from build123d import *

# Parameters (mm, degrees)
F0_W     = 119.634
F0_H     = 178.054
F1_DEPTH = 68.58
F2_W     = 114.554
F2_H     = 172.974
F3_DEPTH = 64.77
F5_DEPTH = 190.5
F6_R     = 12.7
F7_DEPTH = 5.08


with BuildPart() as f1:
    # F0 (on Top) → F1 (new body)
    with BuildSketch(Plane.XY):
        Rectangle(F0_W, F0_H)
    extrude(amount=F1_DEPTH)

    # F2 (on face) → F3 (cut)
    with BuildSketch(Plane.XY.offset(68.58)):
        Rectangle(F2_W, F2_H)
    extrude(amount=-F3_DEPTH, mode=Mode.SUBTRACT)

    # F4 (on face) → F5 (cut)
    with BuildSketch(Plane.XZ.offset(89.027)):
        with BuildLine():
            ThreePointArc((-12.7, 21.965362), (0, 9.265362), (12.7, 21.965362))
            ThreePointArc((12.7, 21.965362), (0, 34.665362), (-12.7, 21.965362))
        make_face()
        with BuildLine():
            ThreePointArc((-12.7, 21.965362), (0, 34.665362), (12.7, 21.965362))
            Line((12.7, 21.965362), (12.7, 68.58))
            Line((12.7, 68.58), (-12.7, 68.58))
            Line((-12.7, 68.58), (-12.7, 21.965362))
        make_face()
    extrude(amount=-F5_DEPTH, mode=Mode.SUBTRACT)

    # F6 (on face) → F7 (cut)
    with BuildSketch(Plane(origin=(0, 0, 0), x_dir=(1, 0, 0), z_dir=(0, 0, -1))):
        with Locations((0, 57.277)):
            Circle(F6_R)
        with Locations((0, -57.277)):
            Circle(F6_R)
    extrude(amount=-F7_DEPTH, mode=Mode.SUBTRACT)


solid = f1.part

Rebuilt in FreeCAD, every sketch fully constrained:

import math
import FreeCAD as App
import Part
import Sketcher
Q = App.Units.Quantity

doc = App.newDocument("Part")
body = doc.addObject("PartDesign::Body", "Body")

# Sketch on XY plane
sketch1 = body.newObject("Sketcher::SketchObject", "Sketch")
sketch1.AttachmentSupport = (doc.getObject("XY_Plane"), [""])
sketch1.MapMode = "FlatFace"
sketch1.addGeometry(Part.LineSegment(App.Vector(-59.817, 89.027, 0), App.Vector(-59.817, -89.027, 0)), False)
sketch1.addGeometry(Part.LineSegment(App.Vector(-59.817, -89.027, 0), App.Vector(59.817, -89.027, 0)), False)
sketch1.addGeometry(Part.LineSegment(App.Vector(59.817, -89.027, 0), App.Vector(59.817, 89.027, 0)), False)
sketch1.addGeometry(Part.LineSegment(App.Vector(59.817, 89.027, 0), App.Vector(-59.817, 89.027, 0)), False)
sketch1.addConstraint(Sketcher.Constraint("Coincident", 0, 2, 1, 1))
sketch1.addConstraint(Sketcher.Constraint("Coincident", 1, 2, 2, 1))
sketch1.addConstraint(Sketcher.Constraint("Coincident", 2, 2, 3, 1))
sketch1.addConstraint(Sketcher.Constraint("Coincident", 3, 2, 0, 1))
sketch1.addConstraint(Sketcher.Constraint("Vertical", 0))
sketch1.addConstraint(Sketcher.Constraint("Horizontal", 1))
sketch1.addConstraint(Sketcher.Constraint("Vertical", 2))
sketch1.addConstraint(Sketcher.Constraint("Horizontal", 3))
sketch1.addConstraint(Sketcher.Constraint("Symmetric", 0, 2, 2, 2, -1, 1))
sketch1.addConstraint(Sketcher.Constraint("DistanceX", 1, 1, 1, 2, Q("4.71 in")))
sketch1.addConstraint(Sketcher.Constraint("DistanceY", 0, 2, 0, 1, Q("7.01 in")))
pad1 = body.newObject("PartDesign::Pad", "Pad")
pad1.Profile = sketch1
pad1.Length = Q("2.7 in")

# Sketch on XY plane
sketch2 = body.newObject("Sketcher::SketchObject", "Sketch001")
sketch2.AttachmentSupport = (doc.getObject("XY_Plane"), [""])
sketch2.MapMode = "FlatFace"
sketch2.AttachmentOffset = App.Placement(App.Vector(0, 0, 2.7 * 25.4), App.Rotation())
sketch2.addGeometry(Part.LineSegment(App.Vector(-57.277, 86.487, 0), App.Vector(-57.277, -86.487, 0)), False)
sketch2.addGeometry(Part.LineSegment(App.Vector(-57.277, -86.487, 0), App.Vector(57.277, -86.487, 0)), False)
sketch2.addGeometry(Part.LineSegment(App.Vector(57.277, -86.487, 0), App.Vector(57.277, 86.487, 0)), False)
sketch2.addGeometry(Part.LineSegment(App.Vector(57.277, 86.487, 0), App.Vector(-57.277, 86.487, 0)), False)
sketch2.addConstraint(Sketcher.Constraint("Coincident", 0, 2, 1, 1))
sketch2.addConstraint(Sketcher.Constraint("Coincident", 1, 2, 2, 1))
sketch2.addConstraint(Sketcher.Constraint("Coincident", 2, 2, 3, 1))
sketch2.addConstraint(Sketcher.Constraint("Coincident", 3, 2, 0, 1))
sketch2.addConstraint(Sketcher.Constraint("Vertical", 0))
sketch2.addConstraint(Sketcher.Constraint("Horizontal", 1))
sketch2.addConstraint(Sketcher.Constraint("Vertical", 2))
sketch2.addConstraint(Sketcher.Constraint("Horizontal", 3))
sketch2.addConstraint(Sketcher.Constraint("Symmetric", 0, 2, 2, 2, -1, 1))
sketch2.addConstraint(Sketcher.Constraint("DistanceX", 1, 1, 1, 2, Q("4.51 in")))
sketch2.addConstraint(Sketcher.Constraint("DistanceY", 0, 2, 0, 1, Q("6.81 in")))
pocket1 = body.newObject("PartDesign::Pocket", "Pocket")
pocket1.Profile = sketch2
pocket1.Length = Q("2.55 in")

# Sketch on XZ plane
sketch3 = body.newObject("Sketcher::SketchObject", "Sketch002")
sketch3.AttachmentSupport = (doc.getObject("XZ_Plane"), [""])
sketch3.MapMode = "FlatFace"
sketch3.AttachmentOffset = App.Placement(App.Vector(0, 0, 3.505 * 25.4), App.Rotation())
sketch3.addGeometry(Part.ArcOfCircle(Part.Circle(App.Vector(0, 21.965362, 0), App.Vector(0, 0, 1), 12.7), math.radians(180), math.radians(360)), False)
sketch3.addGeometry(Part.LineSegment(App.Vector(12.7, 21.965362, 0), App.Vector(12.7, 68.58, 0)), False)
sketch3.addGeometry(Part.LineSegment(App.Vector(12.7, 68.58, 0), App.Vector(-12.7, 68.58, 0)), False)
sketch3.addGeometry(Part.LineSegment(App.Vector(-12.7, 68.58, 0), App.Vector(-12.7, 21.965362, 0)), False)
sketch3.addConstraint(Sketcher.Constraint("Tangent", 0, 2, 1, 1))
sketch3.addConstraint(Sketcher.Constraint("Coincident", 1, 2, 2, 1))
sketch3.addConstraint(Sketcher.Constraint("Coincident", 2, 2, 3, 1))
sketch3.addConstraint(Sketcher.Constraint("Tangent", 3, 2, 0, 1))
sketch3.addConstraint(Sketcher.Constraint("Vertical", 1))
sketch3.addConstraint(Sketcher.Constraint("Horizontal", 2))
sketch3.addConstraint(Sketcher.Constraint("Vertical", 3))
sketch3.addConstraint(Sketcher.Constraint("PointOnObject", 0, 3, -2))
sketch3.addConstraint(Sketcher.Constraint("Radius", 0, Q("0.5 in")))
sketch3.addConstraint(Sketcher.Constraint("DistanceY", -1, 1, 1, 2, Q("2.7 in")))
sketch3.addConstraint(Sketcher.Constraint("DistanceY", 1, 1, 1, 2, 46.614638))
pocket2 = body.newObject("PartDesign::Pocket", "Pocket001")
pocket2.Profile = sketch3
pocket2.Length = Q("7.5 in")

# Sketch on XY plane
sketch4 = body.newObject("Sketcher::SketchObject", "Sketch003")
sketch4.AttachmentSupport = (doc.getObject("XY_Plane"), [""])
sketch4.MapMode = "FlatFace"
sketch4.addGeometry(Part.Circle(App.Vector(0, -57.277, 0), App.Vector(0, 0, 1), 12.7), False)
sketch4.addGeometry(Part.Circle(App.Vector(0, 57.277, 0), App.Vector(0, 0, 1), 12.7), False)
sketch4.addConstraint(Sketcher.Constraint("Equal", 0, 1))
sketch4.addConstraint(Sketcher.Constraint("Symmetric", 0, 3, 1, 3, -1, 1))
sketch4.addConstraint(Sketcher.Constraint("PointOnObject", 0, 3, -2))
sketch4.addConstraint(Sketcher.Constraint("Diameter", 0, Q("1 in")))
sketch4.addConstraint(Sketcher.Constraint("DistanceY", 0, 3, 1, 3, Q("4.51 in")))
pocket3 = body.newObject("PartDesign::Pocket", "Pocket002")
pocket3.Profile = sketch4
pocket3.Length = Q("0.2 in")
pocket3.Reversed = True

doc.recompute()
